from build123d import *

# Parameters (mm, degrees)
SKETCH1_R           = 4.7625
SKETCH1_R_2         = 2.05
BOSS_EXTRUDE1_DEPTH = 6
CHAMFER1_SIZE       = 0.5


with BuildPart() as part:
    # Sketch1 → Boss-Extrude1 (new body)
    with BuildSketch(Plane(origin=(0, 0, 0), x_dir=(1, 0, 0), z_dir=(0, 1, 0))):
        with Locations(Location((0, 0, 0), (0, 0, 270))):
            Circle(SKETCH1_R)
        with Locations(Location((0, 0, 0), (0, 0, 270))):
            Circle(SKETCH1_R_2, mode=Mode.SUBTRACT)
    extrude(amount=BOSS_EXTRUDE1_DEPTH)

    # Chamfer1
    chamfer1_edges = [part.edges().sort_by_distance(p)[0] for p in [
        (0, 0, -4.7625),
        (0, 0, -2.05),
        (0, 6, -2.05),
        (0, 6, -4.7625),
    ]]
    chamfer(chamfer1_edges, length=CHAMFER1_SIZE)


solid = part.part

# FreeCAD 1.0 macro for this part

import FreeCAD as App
import Part
import Sketcher
Q = App.Units.Quantity


def edges_at(feature, points):
    """Names of the edges that pass closest to the given points."""
    edges = feature.Shape.Edges
    near = lambda p: min(range(len(edges)), key=lambda i: edges[i].distToShape(Part.Vertex(*p))[0])
    return sorted({f"Edge{near(p) + 1}" for p in points})

doc = App.newDocument("Part")
body = doc.addObject("PartDesign::Body", "Body")

# Sketch on XZ plane
sketch1 = body.newObject("Sketcher::SketchObject", "Sketch")
sketch1.AttachmentSupport = (doc.getObject("XZ_Plane"), [""])
sketch1.MapMode = "FlatFace"
sketch1.addGeometry([
    Part.Circle(App.Vector(0, 0, 0), App.Vector(0, 0, 1), 4.8),
    Part.Circle(App.Vector(0, 0, 0), App.Vector(0, 0, 1), 2),
], False)
sketch1.addConstraint([
    Sketcher.Constraint("Coincident", 0, 3, -1, 1),
    Sketcher.Constraint("Coincident", 1, 3, -1, 1),
    Sketcher.Constraint("Diameter", 1, Q("4.1 mm")),
    Sketcher.Constraint("Diameter", 0, Q("9.525 mm")),
])
pad1 = body.newObject("PartDesign::Pad", "Pad")
pad1.Profile = sketch1
pad1.Length = 6
pad1.Reversed = True
doc.recompute()

chamfer = body.newObject("PartDesign::Chamfer", "Chamfer")
chamfer.Base = (pad1, edges_at(pad1, [
    (0, 0, -4.763),
    (0, 0, -2.05),
    (0, 6, -2.05),
    (0, 6, -4.763),
]))
chamfer.Size = 0.5

doc.recompute()
